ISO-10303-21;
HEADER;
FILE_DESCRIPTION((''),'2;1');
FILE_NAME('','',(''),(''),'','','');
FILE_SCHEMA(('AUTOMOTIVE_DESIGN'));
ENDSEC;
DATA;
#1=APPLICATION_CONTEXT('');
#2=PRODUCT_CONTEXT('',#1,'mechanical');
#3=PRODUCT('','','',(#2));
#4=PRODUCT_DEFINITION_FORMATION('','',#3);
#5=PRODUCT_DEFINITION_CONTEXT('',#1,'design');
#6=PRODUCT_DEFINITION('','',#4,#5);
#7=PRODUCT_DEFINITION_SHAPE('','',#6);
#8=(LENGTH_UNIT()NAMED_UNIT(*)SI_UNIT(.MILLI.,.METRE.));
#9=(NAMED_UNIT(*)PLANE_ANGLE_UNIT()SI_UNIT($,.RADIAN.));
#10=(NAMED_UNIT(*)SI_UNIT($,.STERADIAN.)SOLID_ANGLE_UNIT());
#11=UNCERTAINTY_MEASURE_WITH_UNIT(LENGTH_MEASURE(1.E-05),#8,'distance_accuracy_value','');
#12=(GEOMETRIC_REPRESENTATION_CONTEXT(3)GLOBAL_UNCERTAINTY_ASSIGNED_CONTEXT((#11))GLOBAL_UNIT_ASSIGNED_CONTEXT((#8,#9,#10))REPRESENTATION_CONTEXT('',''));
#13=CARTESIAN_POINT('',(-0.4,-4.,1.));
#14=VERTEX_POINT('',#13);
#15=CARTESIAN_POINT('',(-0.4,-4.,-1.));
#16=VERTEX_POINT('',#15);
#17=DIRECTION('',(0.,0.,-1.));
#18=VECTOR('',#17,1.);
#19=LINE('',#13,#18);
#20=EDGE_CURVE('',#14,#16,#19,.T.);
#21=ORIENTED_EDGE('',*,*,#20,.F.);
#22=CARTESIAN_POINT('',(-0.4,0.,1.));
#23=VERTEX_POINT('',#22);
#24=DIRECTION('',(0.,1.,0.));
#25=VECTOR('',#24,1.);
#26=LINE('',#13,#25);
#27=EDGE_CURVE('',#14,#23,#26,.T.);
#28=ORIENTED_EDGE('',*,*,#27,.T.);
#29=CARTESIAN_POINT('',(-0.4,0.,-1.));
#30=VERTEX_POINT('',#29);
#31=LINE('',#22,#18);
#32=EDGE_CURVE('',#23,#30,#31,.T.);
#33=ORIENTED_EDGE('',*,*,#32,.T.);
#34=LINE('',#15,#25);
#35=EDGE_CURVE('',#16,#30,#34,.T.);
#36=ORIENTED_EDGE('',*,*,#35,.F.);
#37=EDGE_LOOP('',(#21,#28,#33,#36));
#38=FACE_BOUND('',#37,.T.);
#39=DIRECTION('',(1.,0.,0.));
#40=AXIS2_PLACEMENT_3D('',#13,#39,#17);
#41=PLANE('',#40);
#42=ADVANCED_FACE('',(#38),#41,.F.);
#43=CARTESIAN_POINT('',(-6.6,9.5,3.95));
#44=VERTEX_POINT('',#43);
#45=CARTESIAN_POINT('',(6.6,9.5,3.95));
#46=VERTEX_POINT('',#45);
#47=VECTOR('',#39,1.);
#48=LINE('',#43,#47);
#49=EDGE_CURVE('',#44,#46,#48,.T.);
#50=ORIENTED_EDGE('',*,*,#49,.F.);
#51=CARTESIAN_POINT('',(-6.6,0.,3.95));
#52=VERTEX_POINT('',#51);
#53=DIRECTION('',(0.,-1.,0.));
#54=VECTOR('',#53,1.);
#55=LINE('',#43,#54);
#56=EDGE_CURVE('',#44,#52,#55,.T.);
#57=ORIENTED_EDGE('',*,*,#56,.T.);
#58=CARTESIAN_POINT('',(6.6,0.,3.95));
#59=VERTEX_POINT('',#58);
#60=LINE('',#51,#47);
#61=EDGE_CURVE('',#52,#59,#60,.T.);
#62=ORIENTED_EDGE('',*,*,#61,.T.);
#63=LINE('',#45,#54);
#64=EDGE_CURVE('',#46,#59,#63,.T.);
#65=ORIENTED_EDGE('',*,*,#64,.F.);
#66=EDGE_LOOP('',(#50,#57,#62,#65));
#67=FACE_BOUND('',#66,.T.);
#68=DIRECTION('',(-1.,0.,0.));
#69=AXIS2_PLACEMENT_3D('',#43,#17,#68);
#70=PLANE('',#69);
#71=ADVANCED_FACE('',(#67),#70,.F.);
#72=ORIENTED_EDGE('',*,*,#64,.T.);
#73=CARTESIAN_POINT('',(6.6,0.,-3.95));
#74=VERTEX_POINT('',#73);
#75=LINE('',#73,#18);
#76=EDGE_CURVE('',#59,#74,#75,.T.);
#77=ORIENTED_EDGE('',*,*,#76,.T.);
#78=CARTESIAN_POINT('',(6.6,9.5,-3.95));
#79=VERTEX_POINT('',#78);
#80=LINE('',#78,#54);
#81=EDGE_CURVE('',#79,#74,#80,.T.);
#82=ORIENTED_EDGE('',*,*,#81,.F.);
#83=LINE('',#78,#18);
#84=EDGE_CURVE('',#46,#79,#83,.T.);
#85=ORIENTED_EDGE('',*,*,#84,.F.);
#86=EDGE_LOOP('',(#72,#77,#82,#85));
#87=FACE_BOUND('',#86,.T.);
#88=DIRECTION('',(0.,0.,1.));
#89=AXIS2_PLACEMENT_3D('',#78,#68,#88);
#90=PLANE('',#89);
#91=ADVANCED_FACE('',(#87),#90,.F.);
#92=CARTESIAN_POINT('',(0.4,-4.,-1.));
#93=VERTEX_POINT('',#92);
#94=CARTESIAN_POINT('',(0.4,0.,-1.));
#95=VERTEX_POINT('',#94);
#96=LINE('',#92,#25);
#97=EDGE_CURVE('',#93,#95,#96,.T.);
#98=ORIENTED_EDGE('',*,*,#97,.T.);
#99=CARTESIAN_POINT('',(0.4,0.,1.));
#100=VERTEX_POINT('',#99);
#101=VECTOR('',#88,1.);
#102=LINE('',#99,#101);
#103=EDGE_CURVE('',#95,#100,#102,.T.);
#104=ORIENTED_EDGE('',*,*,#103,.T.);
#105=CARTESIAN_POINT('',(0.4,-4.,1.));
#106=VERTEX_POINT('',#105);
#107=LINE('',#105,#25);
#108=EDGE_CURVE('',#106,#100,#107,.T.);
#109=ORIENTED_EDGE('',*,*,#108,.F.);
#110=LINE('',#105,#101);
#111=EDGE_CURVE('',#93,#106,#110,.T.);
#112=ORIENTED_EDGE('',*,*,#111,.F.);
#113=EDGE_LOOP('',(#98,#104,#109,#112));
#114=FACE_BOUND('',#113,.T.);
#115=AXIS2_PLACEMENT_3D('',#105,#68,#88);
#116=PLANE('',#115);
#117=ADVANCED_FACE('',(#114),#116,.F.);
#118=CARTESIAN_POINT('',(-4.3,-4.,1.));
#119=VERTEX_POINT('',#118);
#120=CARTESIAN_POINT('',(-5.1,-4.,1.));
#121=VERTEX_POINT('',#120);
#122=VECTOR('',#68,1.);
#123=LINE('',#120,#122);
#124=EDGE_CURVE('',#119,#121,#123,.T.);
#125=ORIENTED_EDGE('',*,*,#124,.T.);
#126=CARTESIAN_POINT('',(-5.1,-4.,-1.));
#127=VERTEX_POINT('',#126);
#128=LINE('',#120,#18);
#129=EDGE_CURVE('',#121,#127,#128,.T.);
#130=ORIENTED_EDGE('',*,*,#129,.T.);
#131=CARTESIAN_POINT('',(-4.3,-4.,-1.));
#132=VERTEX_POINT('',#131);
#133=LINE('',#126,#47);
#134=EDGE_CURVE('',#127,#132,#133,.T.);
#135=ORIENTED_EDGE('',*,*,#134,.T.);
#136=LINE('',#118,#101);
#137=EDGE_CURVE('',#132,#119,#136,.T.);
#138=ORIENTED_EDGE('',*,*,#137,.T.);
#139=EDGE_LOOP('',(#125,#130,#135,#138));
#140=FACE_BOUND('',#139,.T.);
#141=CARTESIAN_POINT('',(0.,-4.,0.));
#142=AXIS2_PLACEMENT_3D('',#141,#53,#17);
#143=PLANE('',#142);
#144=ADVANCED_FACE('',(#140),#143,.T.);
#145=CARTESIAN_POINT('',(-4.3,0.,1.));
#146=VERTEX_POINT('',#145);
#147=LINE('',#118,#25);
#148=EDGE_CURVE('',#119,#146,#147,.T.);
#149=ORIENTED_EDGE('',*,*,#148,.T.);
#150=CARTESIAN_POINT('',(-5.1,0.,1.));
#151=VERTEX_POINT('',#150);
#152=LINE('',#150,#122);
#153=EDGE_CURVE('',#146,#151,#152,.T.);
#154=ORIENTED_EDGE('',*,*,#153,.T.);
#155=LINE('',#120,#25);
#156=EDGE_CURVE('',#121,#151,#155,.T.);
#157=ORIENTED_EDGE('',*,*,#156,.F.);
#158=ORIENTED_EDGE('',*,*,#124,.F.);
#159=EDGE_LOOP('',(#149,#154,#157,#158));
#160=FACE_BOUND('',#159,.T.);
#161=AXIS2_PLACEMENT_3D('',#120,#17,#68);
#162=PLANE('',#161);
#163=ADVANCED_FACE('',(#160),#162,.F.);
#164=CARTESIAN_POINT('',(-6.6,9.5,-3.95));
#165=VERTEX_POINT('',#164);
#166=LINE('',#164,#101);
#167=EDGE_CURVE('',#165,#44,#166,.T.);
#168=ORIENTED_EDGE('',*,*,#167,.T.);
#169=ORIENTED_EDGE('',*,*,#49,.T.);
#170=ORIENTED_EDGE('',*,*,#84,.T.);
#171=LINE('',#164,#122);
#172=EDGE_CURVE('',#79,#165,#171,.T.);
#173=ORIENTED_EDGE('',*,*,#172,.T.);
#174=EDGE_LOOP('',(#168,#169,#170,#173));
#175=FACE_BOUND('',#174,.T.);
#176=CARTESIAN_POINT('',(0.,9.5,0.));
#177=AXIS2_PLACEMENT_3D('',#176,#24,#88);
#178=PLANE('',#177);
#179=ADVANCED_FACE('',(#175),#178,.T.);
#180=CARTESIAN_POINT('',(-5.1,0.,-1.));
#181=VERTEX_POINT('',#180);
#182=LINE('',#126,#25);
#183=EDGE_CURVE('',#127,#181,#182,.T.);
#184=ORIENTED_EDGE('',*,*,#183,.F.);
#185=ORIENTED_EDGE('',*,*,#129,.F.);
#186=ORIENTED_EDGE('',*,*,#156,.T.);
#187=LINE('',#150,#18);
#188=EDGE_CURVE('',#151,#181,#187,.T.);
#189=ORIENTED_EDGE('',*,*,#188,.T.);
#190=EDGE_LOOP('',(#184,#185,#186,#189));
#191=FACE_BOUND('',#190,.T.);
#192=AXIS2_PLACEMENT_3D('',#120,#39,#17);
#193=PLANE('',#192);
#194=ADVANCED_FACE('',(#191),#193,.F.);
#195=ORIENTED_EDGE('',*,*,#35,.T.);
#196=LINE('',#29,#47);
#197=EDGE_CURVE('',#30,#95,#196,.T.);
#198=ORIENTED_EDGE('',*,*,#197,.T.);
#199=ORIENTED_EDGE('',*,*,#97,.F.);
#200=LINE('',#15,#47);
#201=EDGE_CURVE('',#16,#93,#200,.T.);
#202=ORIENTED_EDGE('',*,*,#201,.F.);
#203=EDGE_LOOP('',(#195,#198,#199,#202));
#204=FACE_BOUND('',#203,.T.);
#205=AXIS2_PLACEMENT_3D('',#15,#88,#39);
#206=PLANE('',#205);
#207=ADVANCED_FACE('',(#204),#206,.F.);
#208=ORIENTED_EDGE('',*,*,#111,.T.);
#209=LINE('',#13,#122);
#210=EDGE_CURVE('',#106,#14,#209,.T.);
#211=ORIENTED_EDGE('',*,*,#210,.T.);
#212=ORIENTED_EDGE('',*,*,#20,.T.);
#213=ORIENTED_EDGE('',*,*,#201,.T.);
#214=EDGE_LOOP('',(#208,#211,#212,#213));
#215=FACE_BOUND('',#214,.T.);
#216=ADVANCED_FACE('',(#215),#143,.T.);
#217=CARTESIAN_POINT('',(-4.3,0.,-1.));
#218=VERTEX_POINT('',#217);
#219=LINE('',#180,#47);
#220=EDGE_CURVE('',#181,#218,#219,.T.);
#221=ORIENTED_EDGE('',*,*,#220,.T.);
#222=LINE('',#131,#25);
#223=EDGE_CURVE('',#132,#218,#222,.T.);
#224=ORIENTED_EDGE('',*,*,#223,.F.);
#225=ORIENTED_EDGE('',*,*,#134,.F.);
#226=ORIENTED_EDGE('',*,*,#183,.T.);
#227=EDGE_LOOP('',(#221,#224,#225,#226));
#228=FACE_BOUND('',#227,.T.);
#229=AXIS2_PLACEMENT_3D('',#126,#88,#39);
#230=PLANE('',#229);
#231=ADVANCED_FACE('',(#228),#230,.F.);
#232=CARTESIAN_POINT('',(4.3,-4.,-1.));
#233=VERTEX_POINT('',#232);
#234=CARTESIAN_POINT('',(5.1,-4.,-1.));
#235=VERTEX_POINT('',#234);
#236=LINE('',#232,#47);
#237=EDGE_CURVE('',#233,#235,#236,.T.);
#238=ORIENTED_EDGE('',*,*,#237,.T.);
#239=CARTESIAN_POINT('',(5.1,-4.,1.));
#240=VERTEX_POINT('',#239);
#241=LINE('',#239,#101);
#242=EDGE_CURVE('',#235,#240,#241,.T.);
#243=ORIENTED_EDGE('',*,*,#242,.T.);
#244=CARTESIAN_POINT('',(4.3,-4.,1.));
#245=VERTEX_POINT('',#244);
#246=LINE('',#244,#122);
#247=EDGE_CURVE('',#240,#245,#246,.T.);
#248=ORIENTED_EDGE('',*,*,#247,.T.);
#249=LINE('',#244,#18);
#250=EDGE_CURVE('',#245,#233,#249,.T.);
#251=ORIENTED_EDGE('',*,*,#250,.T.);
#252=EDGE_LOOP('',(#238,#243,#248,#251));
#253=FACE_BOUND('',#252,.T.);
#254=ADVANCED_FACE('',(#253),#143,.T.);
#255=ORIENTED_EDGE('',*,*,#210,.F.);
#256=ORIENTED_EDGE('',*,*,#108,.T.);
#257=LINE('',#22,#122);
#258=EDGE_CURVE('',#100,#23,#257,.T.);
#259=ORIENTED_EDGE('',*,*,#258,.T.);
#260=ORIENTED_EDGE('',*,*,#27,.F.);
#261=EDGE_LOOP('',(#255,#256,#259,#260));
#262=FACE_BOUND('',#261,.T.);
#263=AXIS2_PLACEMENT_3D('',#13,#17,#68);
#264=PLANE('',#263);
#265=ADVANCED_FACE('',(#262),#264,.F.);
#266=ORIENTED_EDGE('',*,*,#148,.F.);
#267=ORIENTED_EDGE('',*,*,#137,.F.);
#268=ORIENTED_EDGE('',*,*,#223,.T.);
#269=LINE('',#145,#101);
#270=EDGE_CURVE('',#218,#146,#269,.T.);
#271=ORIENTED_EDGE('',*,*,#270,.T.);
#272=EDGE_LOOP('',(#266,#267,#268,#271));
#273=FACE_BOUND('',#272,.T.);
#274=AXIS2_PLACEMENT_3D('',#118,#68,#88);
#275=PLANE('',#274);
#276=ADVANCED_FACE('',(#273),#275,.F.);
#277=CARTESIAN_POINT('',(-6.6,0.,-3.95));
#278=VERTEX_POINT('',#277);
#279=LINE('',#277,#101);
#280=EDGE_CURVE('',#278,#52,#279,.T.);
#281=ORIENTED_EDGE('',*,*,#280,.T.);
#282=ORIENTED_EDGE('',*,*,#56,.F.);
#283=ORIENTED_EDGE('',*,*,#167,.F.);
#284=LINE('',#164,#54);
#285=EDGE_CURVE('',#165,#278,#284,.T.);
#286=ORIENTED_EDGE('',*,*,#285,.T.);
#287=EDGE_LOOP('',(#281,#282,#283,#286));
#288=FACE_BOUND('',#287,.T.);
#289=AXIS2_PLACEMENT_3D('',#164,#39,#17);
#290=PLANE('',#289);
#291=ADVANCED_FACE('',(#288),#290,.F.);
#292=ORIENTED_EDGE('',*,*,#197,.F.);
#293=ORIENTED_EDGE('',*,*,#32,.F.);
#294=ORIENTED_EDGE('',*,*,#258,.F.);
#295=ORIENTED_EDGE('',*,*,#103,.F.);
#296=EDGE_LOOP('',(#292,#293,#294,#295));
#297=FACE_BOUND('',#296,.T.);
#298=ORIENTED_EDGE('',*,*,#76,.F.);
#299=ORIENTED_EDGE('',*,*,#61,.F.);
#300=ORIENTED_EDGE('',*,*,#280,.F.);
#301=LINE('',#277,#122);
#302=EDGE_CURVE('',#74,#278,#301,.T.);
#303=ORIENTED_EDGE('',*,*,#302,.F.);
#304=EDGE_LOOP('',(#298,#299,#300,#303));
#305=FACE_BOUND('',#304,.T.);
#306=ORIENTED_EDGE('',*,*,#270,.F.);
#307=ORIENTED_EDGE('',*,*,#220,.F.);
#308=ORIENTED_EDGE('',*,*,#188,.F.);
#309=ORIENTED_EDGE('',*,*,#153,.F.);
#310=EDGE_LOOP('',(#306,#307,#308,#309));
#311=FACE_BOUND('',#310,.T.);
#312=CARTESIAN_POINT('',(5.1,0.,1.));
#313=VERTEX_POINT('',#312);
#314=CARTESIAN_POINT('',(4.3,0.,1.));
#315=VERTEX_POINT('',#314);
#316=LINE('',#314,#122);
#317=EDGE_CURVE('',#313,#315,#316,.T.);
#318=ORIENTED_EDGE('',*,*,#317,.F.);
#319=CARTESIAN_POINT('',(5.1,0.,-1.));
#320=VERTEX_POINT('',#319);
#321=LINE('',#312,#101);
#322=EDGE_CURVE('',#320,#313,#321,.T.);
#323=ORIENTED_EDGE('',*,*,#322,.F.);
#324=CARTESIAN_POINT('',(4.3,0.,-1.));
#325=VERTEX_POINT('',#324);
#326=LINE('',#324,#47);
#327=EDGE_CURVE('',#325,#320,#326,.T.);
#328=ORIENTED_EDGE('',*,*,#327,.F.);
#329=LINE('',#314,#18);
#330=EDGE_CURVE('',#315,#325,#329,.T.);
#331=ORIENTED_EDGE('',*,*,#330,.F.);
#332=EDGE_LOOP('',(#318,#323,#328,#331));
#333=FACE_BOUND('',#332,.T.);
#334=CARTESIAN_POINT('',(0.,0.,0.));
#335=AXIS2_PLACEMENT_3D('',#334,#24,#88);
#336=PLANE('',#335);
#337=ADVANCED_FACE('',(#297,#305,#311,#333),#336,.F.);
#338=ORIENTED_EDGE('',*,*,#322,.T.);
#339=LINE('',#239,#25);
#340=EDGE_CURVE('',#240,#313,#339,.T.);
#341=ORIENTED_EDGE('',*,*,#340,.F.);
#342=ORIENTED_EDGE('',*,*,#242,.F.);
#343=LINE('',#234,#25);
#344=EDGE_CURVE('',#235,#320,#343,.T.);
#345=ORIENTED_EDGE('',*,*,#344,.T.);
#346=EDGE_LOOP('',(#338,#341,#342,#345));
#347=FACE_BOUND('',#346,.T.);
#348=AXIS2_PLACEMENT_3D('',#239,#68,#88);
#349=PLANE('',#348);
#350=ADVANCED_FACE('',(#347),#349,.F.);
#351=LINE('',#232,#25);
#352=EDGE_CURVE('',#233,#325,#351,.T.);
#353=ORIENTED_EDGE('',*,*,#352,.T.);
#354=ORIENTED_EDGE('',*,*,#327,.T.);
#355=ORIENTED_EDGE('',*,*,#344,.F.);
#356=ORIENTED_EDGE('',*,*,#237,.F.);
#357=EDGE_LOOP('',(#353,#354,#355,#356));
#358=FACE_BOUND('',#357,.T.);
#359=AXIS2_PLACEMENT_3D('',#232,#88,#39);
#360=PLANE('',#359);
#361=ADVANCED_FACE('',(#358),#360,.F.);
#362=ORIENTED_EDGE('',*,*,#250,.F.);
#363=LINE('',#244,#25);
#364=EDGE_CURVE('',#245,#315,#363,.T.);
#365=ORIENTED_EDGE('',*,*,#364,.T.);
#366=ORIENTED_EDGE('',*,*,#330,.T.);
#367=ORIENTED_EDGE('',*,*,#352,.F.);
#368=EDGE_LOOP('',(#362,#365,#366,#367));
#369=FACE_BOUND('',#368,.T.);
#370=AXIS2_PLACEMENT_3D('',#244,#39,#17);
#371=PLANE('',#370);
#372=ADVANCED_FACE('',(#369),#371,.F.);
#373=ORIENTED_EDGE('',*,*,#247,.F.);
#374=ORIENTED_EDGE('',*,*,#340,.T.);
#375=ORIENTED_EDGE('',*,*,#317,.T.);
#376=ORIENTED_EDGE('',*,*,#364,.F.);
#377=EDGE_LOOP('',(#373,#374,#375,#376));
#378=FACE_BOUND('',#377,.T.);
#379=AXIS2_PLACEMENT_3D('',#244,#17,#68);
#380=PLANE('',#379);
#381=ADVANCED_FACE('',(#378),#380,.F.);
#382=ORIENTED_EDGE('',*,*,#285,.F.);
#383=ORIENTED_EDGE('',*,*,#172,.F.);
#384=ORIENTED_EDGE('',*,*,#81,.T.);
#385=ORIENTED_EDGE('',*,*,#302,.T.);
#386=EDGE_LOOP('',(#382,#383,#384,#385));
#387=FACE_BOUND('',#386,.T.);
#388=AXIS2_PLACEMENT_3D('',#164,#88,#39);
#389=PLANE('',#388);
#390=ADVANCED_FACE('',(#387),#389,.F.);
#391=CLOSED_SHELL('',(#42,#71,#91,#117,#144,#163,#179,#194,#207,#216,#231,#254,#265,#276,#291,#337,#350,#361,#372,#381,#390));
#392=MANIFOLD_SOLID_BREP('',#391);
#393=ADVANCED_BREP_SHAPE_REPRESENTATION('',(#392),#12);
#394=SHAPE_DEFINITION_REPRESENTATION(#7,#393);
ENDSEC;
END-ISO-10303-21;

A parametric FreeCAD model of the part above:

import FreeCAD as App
import Part
import Sketcher

V = App.Vector


def add_polygon(sketch, points):
    """Adds a closed chain of lines whose ends are joined by coincident constraints."""
    first, n = sketch.GeometryCount, len(points)
    for a, b in zip(points, points[1:] + points[:1]):
        sketch.addGeometry(Part.LineSegment(App.Vector(*a, 0), App.Vector(*b, 0)), False)
    for i in range(n):
        sketch.addConstraint(Sketcher.Constraint("Coincident", first + i, 2, first + (i + 1) % n, 1))

doc = App.newDocument("Part")
body = doc.addObject("PartDesign::Body", "Body")

sketch1 = body.newObject("Sketcher::SketchObject", "Sketch")
sketch1.AttachmentSupport = (doc.getObject("XZ_Plane"), [""])
sketch1.MapMode = "FlatFace"
add_polygon(sketch1, [(-7, -4), (-7, 4), (7, 4), (7, -4)])
sketch1.addConstraint([
    Sketcher.Constraint("Vertical", 0),
    Sketcher.Constraint("Horizontal", 1),
    Sketcher.Constraint("Vertical", 2),
    Sketcher.Constraint("Horizontal", 3),
    Sketcher.Constraint("Symmetric", 0, 2, 2, 2, -1, 1),
    Sketcher.Constraint("DistanceX", 1, 1, 1, 2, 13.2),
    Sketcher.Constraint("DistanceY", 0, 1, 0, 2, 7.9),
])
pad1 = body.newObject("PartDesign::Pad", "Pad")
pad1.Profile = sketch1
pad1.Length = 9.5
pad1.Reversed = True

sketch2 = body.newObject("Sketcher::SketchObject", "Sketch001")
sketch2.AttachmentSupport = (doc.getObject("XZ_Plane"), [""])
sketch2.MapMode = "FlatFace"
add_polygon(sketch2, [(-0.4, 1), (-0.4, -1), (0.4, -1), (0.4, 1)])
add_polygon(sketch2, [(4.3, 1), (4.3, -1), (5.1, -1), (5.1, 1)])
add_polygon(sketch2, [(-5.1, 1), (-5.1, -1), (-4.3, -1), (-4.3, 1)])
sketch2.addConstraint([
    Sketcher.Constraint("Vertical", 0),
    Sketcher.Constraint("Horizontal", 1),
    Sketcher.Constraint("Vertical", 2),
    Sketcher.Constraint("Horizontal", 3),
    Sketcher.Constraint("Vertical", 4),
    Sketcher.Constraint("Horizontal", 5),
    Sketcher.Constraint("Vertical", 6),
    Sketcher.Constraint("Horizontal", 7),
    Sketcher.Constraint("Vertical", 8),
    Sketcher.Constraint("Horizontal", 9),
    Sketcher.Constraint("Vertical", 10),
    Sketcher.Constraint("Horizontal", 11),
    Sketcher.Constraint("Symmetric", 0, 2, 2, 2, -1, 1),
    Sketcher.Constraint("Symmetric", 6, 2, 8, 2, -1, 1),
    Sketcher.Constraint("Symmetric", 4, 2, 10, 2, -1, 1),
    Sketcher.Constraint("Horizontal", 1, 2, 4, 2),
    Sketcher.Constraint("Horizontal", 3, 2, 6, 2),
    Sketcher.Constraint("Equal", 3, 5),
    Sketcher.Constraint("DistanceY", 0, 2, 0, 1, 2.0),
    Sketcher.Constraint("DistanceX", 1, 1, 1, 2, 0.8),
    Sketcher.Constraint("DistanceX", -1, 1, 4, 2, 4.3),
])
pad2 = body.newObject("PartDesign::Pad", "Pad001")
pad2.Profile = sketch2
pad2.Length = 4

doc.recompute()
